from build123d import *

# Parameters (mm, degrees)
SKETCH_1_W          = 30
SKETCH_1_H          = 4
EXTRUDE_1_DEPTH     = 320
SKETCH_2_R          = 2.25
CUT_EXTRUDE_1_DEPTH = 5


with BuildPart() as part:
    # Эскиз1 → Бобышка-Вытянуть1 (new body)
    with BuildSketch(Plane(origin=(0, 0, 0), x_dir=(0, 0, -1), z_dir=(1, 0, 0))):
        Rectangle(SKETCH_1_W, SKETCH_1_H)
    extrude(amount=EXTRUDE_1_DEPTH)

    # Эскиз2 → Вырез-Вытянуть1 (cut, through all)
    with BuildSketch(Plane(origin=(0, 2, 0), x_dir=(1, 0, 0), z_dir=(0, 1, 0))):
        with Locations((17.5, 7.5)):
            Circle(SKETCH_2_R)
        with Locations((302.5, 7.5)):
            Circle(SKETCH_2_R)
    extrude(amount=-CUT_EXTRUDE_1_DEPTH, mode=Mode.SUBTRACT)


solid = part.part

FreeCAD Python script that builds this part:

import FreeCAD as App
import Part
import Sketcher

V = App.Vector
Q = App.Units.Quantity


def add_polygon(sketch, points):
    """Adds a closed chain of lines whose ends are joined by coincident constraints."""
    first, n = sketch.GeometryCount, len(points)
    for a, b in zip(points, points[1:] + points[:1]):
        sketch.addGeometry(Part.LineSegment(App.Vector(*a, 0), App.Vector(*b, 0)), False)
    for i in range(n):
        sketch.addConstraint(Sketcher.Constraint("Coincident", first + i, 2, first + (i + 1) % n, 1))

doc = App.newDocument("Part")
body = doc.addObject("PartDesign::Body", "Body")

sketch1 = doc.addObject("Sketcher::SketchObject", "Sketch")
body.addObject(sketch1)
sketch1.AttachmentSupport = (doc.YZ_Plane, [""])
sketch1.MapMode = "FlatFace"
add_polygon(sketch1, [(2, 15), (-2, 15), (-2, -15), (2, -15)])
sketch1.addConstraint([
    Sketcher.Constraint("Horizontal", 0),
    Sketcher.Constraint("Vertical", 1),
    Sketcher.Constraint("Horizontal", 2),
    Sketcher.Constraint("Vertical", 3),
    Sketcher.Constraint("Symmetric", 0, 2, 2, 2, -1, 1),
    Sketcher.Constraint("DistanceX", 0, 2, 0, 1, Q("4 mm")),
    Sketcher.Constraint("DistanceY", 1, 2, 1, 1, Q("30 mm")),
])
pad1 = doc.addObject("PartDesign::Pad", "Pad")
body.addObject(pad1)
pad1.Profile = sketch1
pad1.Length = 320

sketch2 = doc.addObject("Sketcher::SketchObject", "Sketch001")
body.addObject(sketch2)
sketch2.AttachmentSupport = (doc.XZ_Plane, [""])
sketch2.MapMode = "FlatFace"
sketch2.AttachmentOffset = App.Placement(V(0, 0, -2), App.Rotation())
sketch2.addGeometry([
    Part.Circle(V(17.5, -7.5, 0), V(0, 0, 1), 2.2),
    Part.Circle(V(302.5, -7.5, 0), V(0, 0, 1), 2.2),
], False)
sketch2.addConstraint([
    Sketcher.Constraint("Equal", 0, 1),
    Sketcher.Constraint("Horizontal", 0, 3, 1, 3),
    Sketcher.Constraint("Diameter", 0, Q("4.5 mm")),
    Sketcher.Constraint("DistanceX", 0, 3, 1, 3, Q("285 mm")),
    Sketcher.Constraint("DistanceX", -1, 1, 0, 3, Q("17.5 mm")),
    Sketcher.Constraint("DistanceY", 0, 3, -1, 1, Q("7.5 mm")),
])
pocket1 = doc.addObject("PartDesign::Pocket", "Pocket")
body.addObject(pocket1)
pocket1.Profile = sketch2
pocket1.Type = "ThroughAll"
pocket1.Reversed = True

doc.recompute()
